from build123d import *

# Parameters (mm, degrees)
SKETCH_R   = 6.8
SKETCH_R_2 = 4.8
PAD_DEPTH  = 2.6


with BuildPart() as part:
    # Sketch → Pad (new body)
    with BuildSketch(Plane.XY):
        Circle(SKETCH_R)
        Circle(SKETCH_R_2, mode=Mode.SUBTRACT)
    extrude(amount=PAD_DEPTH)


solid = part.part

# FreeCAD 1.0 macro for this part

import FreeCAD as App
import Part
import Sketcher

V = App.Vector
Q = App.Units.Quantity

doc = App.newDocument("Part")
body = doc.addObject("PartDesign::Body", "Body")

sketch1 = doc.addObject("Sketcher::SketchObject", "Sketch")
body.addObject(sketch1)
sketch1.AttachmentSupport = (doc.XY_Plane, [""])
sketch1.MapMode = "FlatFace"
sketch1.addGeometry(Part.Circle(V(0, 0, 0), V(0, 0, 1), 6.8), False)
sketch1.addGeometry(Part.Circle(V(0, 0, 0), V(0, 0, 1), 4.8), False)
sketch1.addConstraint(Sketcher.Constraint("Coincident", 0, 3, -1, 1))
sketch1.addConstraint(Sketcher.Constraint("Coincident", 1, 3, -1, 1))
sketch1.addConstraint(Sketcher.Constraint("Diameter", 0, Q("13.6 mm")))
sketch1.addConstraint(Sketcher.Constraint("Diameter", 1, Q("9.6 mm")))
pad1 = doc.addObject("PartDesign::Pad", "Pad")
body.addObject(pad1)
pad1.Profile = sketch1
pad1.Length = 2.6

doc.recompute()
